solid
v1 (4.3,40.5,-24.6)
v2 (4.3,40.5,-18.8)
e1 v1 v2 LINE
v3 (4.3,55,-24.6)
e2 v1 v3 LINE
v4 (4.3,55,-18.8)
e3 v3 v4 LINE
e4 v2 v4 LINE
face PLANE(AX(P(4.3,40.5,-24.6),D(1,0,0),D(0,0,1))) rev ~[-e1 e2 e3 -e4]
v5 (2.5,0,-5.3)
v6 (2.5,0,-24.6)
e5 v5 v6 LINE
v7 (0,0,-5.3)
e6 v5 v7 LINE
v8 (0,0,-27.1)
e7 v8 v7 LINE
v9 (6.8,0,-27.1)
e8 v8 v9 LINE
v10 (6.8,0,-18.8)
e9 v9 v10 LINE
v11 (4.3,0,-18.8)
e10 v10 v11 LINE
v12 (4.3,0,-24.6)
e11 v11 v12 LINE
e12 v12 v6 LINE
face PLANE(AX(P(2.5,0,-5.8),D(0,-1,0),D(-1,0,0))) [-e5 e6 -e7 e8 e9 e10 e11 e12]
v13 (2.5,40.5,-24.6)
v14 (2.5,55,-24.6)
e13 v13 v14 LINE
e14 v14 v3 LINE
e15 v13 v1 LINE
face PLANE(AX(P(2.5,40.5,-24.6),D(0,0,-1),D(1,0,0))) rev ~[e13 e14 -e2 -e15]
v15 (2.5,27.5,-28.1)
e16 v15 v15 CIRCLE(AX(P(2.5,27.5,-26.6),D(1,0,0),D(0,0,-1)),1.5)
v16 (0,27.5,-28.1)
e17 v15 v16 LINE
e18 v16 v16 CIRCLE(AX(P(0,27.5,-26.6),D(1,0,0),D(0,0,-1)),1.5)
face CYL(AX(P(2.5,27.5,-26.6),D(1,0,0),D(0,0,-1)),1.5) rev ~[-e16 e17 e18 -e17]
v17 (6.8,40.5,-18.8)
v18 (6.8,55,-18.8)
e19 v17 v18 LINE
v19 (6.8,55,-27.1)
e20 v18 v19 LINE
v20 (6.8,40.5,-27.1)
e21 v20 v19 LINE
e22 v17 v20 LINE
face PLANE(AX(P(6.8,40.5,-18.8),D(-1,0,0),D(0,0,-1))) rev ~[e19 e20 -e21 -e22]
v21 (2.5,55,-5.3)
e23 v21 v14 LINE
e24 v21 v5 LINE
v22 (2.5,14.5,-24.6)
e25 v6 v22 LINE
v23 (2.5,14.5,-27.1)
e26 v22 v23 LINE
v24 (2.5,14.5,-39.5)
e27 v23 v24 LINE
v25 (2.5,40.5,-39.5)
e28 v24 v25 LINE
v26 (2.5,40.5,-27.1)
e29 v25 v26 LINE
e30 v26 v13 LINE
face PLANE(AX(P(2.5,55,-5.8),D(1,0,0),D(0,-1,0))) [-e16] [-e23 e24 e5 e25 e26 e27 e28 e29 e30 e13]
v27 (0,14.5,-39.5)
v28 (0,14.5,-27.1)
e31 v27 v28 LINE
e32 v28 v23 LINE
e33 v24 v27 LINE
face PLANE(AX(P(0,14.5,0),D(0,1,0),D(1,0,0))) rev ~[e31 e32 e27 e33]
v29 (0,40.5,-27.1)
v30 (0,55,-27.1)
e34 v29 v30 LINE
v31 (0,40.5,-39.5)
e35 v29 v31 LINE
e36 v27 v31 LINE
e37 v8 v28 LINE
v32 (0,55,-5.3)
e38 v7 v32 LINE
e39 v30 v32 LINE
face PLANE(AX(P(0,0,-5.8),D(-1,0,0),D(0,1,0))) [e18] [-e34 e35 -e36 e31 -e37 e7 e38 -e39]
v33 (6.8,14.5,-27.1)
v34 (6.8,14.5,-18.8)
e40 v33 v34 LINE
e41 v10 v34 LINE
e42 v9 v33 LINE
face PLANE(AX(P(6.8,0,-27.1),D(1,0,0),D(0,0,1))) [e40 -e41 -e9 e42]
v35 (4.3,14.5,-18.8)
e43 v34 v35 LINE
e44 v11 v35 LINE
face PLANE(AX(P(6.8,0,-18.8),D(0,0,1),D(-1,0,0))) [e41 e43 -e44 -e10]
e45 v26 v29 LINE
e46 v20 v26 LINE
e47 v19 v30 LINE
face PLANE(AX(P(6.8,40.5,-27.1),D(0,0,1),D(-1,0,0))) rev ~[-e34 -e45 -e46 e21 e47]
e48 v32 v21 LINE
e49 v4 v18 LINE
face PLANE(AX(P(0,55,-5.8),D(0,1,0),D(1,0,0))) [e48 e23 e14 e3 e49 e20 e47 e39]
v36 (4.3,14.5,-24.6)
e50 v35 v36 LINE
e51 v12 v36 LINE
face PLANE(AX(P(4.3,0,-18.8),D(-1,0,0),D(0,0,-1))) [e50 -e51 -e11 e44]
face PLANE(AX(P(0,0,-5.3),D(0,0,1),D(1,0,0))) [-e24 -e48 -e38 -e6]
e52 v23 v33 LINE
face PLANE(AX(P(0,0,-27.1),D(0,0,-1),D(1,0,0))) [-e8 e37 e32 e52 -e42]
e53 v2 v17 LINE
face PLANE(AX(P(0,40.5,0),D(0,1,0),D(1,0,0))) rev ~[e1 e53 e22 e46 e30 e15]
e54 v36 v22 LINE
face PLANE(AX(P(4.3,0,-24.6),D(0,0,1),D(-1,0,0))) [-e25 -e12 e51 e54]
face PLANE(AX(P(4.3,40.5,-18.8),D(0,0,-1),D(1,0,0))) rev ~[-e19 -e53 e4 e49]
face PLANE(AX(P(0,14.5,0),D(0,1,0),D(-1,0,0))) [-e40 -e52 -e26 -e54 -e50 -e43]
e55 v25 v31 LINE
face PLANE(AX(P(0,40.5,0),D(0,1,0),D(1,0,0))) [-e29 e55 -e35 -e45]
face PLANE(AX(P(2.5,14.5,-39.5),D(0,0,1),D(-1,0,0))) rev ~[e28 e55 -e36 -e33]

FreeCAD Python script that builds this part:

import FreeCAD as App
import Part
import Sketcher
Q = App.Units.Quantity


def add_polygon(sketch, points):
    """Adds a closed chain of lines whose ends are joined by coincident constraints."""
    first, n = sketch.GeometryCount, len(points)
    for a, b in zip(points, points[1:] + points[:1]):
        sketch.addGeometry(Part.LineSegment(App.Vector(*a, 0), App.Vector(*b, 0)), False)
    for i in range(n):
        sketch.addConstraint(Sketcher.Constraint("Coincident", first + i, 2, first + (i + 1) % n, 1))

doc = App.newDocument("Part")
body = doc.addObject("PartDesign::Body", "Body")
body.AllowCompound = True

sketch1 = body.newObject("Sketcher::SketchObject", "Sketch")
sketch1.AttachmentSupport = (doc.getObject("XZ_Plane"), [""])
sketch1.MapMode = "FlatFace"
add_polygon(sketch1, [(0, -27.1), (0, 27.1), (6.8, 27.1), (6.8, 18.8), (4.3, 18.8), (4.3, 24.6), (2.5, 24.6), (2.5, -24.6), (4.3, -24.6), (4.3, -18.8), (6.8, -18.8), (6.8, -27.1)])
sketch1.addConstraint(Sketcher.Constraint("Vertical", 0))
sketch1.addConstraint(Sketcher.Constraint("Horizontal", 1))
sketch1.addConstraint(Sketcher.Constraint("Vertical", 2))
sketch1.addConstraint(Sketcher.Constraint("Horizontal", 3))
sketch1.addConstraint(Sketcher.Constraint("Vertical", 4))
sketch1.addConstraint(Sketcher.Constraint("Horizontal", 5))
sketch1.addConstraint(Sketcher.Constraint("Vertical", 6))
sketch1.addConstraint(Sketcher.Constraint("Horizontal", 7))
sketch1.addConstraint(Sketcher.Constraint("Vertical", 8))
sketch1.addConstraint(Sketcher.Constraint("Horizontal", 9))
sketch1.addConstraint(Sketcher.Constraint("Vertical", 10))
sketch1.addConstraint(Sketcher.Constraint("Horizontal", 11))
sketch1.addConstraint(Sketcher.Constraint("Symmetric", 0, 2, 11, 2, -1, 1))
sketch1.addConstraint(Sketcher.Constraint("Symmetric", 4, 2, 7, 2, -1))
sketch1.addConstraint(Sketcher.Constraint("Symmetric", 2, 2, 9, 2, -1))
sketch1.addConstraint(Sketcher.Constraint("DistanceX", 1, 1, 1, 2, Q("6.8 mm")))
sketch1.addConstraint(Sketcher.Constraint("DistanceX", 3, 2, 3, 1, Q("2.5 mm")))
sketch1.addConstraint(Sketcher.Constraint("DistanceX", 5, 2, 5, 1, Q("1.8 mm")))
sketch1.addConstraint(Sketcher.Constraint("DistanceY", 0, 1, 0, 2, Q("54.2 mm")))
sketch1.addConstraint(Sketcher.Constraint("DistanceY", 2, 2, 2, 1, Q("8.3 mm")))
sketch1.addConstraint(Sketcher.Constraint("DistanceY", 4, 1, 4, 2, Q("5.8 mm")))
pad1 = body.newObject("PartDesign::Pad", "Pad")
pad1.Profile = sketch1
pad1.Length = 14.5
pad1.Reversed = True

sketch2 = body.newObject("Sketcher::SketchObject", "Sketch001")
sketch2.AttachmentSupport = (doc.getObject("XZ_Plane"), [""])
sketch2.MapMode = "FlatFace"
sketch2.AttachmentOffset = App.Placement(App.Vector(0, 0, -14.5), App.Rotation())
add_polygon(sketch2, [(2.5, 39.5), (2.5, -39.5), (0, -39.5), (0, 39.5)])
sketch2.addConstraint(Sketcher.Constraint("Vertical", 0))
sketch2.addConstraint(Sketcher.Constraint("Horizontal", 1))
sketch2.addConstraint(Sketcher.Constraint("Vertical", 2))
sketch2.addConstraint(Sketcher.Constraint("Horizontal", 3))
sketch2.addConstraint(Sketcher.Constraint("Symmetric", 1, 2, 2, 2, -1, 1))
sketch2.addConstraint(Sketcher.Constraint("DistanceY", 0, 2, -1, 1, Q("39.5 mm")))
sketch2.addConstraint(Sketcher.Constraint("DistanceX", 1, 2, 1, 1, Q("2.5 mm")))
pad2 = body.newObject("PartDesign::Pad", "Pad001")
pad2.Profile = sketch2
pad2.Length = 26
pad2.Reversed = True

sketch3 = body.newObject("Sketcher::SketchObject", "Sketch002")
sketch3.AttachmentSupport = (doc.getObject("XZ_Plane"), [""])
sketch3.MapMode = "FlatFace"
sketch3.AttachmentOffset = App.Placement(App.Vector(0, 0, -40.5), App.Rotation())
add_polygon(sketch3, [(4.3, 24.6), (2.5, 24.6), (2.5, -24.6), (4.3, -24.6), (4.3, -18.8), (6.8, -18.8), (6.8, -27.1), (0, -27.1), (0, 27.1), (6.8, 27.1), (6.8, 18.8), (4.3, 18.8)])
sketch3.addConstraint(Sketcher.Constraint("Horizontal", 0))
sketch3.addConstraint(Sketcher.Constraint("Vertical", 1))
sketch3.addConstraint(Sketcher.Constraint("Horizontal", 2))
sketch3.addConstraint(Sketcher.Constraint("Vertical", 3))
sketch3.addConstraint(Sketcher.Constraint("Horizontal", 4))
sketch3.addConstraint(Sketcher.Constraint("Vertical", 5))
sketch3.addConstraint(Sketcher.Constraint("Horizontal", 6))
sketch3.addConstraint(Sketcher.Constraint("Vertical", 7))
sketch3.addConstraint(Sketcher.Constraint("Horizontal", 8))
sketch3.addConstraint(Sketcher.Constraint("Vertical", 9))
sketch3.addConstraint(Sketcher.Constraint("Horizontal", 10))
sketch3.addConstraint(Sketcher.Constraint("Vertical", 11))
sketch3.addConstraint(Sketcher.Constraint("Symmetric", 6, 2, 7, 2, -1, 1))
sketch3.addConstraint(Sketcher.Constraint("Symmetric", 4, 2, 9, 2, -1))
sketch3.addConstraint(Sketcher.Constraint("Symmetric", 2, 2, 11, 2, -1))
sketch3.addConstraint(Sketcher.Constraint("DistanceX", 0, 2, 0, 1, Q("1.8 mm")))
sketch3.addConstraint(Sketcher.Constraint("DistanceX", 4, 1, 4, 2, Q("2.5 mm")))
sketch3.addConstraint(Sketcher.Constraint("DistanceX", 6, 2, 6, 1, Q("6.8 mm")))
sketch3.addConstraint(Sketcher.Constraint("DistanceY", 1, 2, 1, 1, Q("49.2 mm")))
sketch3.addConstraint(Sketcher.Constraint("DistanceY", 3, 1, 3, 2, Q("5.8 mm")))
sketch3.addConstraint(Sketcher.Constraint("DistanceY", 5, 2, 5, 1, Q("8.3 mm")))
pad3 = body.newObject("PartDesign::Pad", "Pad002")
pad3.Profile = sketch3
pad3.Length = 14.5
pad3.Reversed = True

sketch4 = body.newObject("Sketcher::SketchObject", "Sketch003")
sketch4.AttachmentSupport = (doc.getObject("YZ_Plane"), [""])
sketch4.MapMode = "FlatFace"
sketch4.AttachmentOffset = App.Placement(App.Vector(0, 0, 2.5), App.Rotation())
sketch4.addGeometry(Part.Circle(App.Vector(27.5, 26.1, 0), App.Vector(0, 0, 1), 1.5), False)
sketch4.addGeometry(Part.Circle(App.Vector(27.5, -26.6, 0), App.Vector(0, 0, 1), 1.5), False)
sketch4.addConstraint(Sketcher.Constraint("Equal", 0, 1))
sketch4.addConstraint(Sketcher.Constraint("Vertical", 0, 3, 1, 3))
sketch4.addConstraint(Sketcher.Constraint("Diameter", 0, Q("3 mm")))
sketch4.addConstraint(Sketcher.Constraint("DistanceX", -1, 1, 0, 3, Q("27.5 mm")))
sketch4.addConstraint(Sketcher.Constraint("DistanceY", -1, 1, 0, 3, Q("26.1 mm")))
sketch4.addConstraint(Sketcher.Constraint("DistanceY", 1, 3, -1, 1, Q("26.6 mm")))
pocket1 = body.newObject("PartDesign::Pocket", "Pocket")
pocket1.Profile = sketch4
pocket1.Length = 4.5

sketch5 = body.newObject("Sketcher::SketchObject", "Sketch004")
sketch5.AttachmentSupport = (doc.getObject("YZ_Plane"), [""])
sketch5.MapMode = "FlatFace"
add_polygon(sketch5, [(0, -6), (0, 6), (55, 6), (55, -6)])
sketch5.addConstraint(Sketcher.Constraint("Vertical", 0))
sketch5.addConstraint(Sketcher.Constraint("Horizontal", 1))
sketch5.addConstraint(Sketcher.Constraint("Vertical", 2))
sketch5.addConstraint(Sketcher.Constraint("Horizontal", 3))
sketch5.addConstraint(Sketcher.Constraint("Symmetric", 0, 2, 3, 2, -1, 1))
sketch5.addConstraint(Sketcher.Constraint("DistanceY", -1, 1, 0, 2, Q("5.8 mm")))
sketch5.addConstraint(Sketcher.Constraint("DistanceX", 1, 1, 1, 2, Q("55 mm")))
pocket2 = body.newObject("PartDesign::Pocket", "Pocket001")
pocket2.Profile = sketch5
pocket2.Length = 62.3875
pocket2.Reversed = True

sketch6 = body.newObject("Sketcher::SketchObject", "Sketch005")
sketch6.AttachmentSupport = (doc.getObject("YZ_Plane"), [""])
sketch6.MapMode = "FlatFace"
add_polygon(sketch6, [(64, 6), (0, 6), (0, 46), (64, 46)])
sketch6.addConstraint(Sketcher.Constraint("Horizontal", 0))
sketch6.addConstraint(Sketcher.Constraint("Vertical", 1))
sketch6.addConstraint(Sketcher.Constraint("Horizontal", 2))
sketch6.addConstraint(Sketcher.Constraint("Vertical", 3))
sketch6.addConstraint(Sketcher.Constraint("PointOnObject", 0, 2, -2))
sketch6.addConstraint(Sketcher.Constraint("DistanceY", -1, 1, 0, 2, Q("5.8 mm")))
sketch6.addConstraint(Sketcher.Constraint("DistanceX", 0, 2, 0, 1, Q("64.4868 mm")))
sketch6.addConstraint(Sketcher.Constraint("DistanceY", 1, 1, 1, 2, Q("39.8957 mm")))
pocket3 = body.newObject("PartDesign::Pocket", "Pocket002")
pocket3.Profile = sketch6
pocket3.Length = 62.3875
pocket3.Reversed = True

sketch7 = body.newObject("Sketcher::SketchObject", "Sketch006")
sketch7.AttachmentSupport = (doc.getObject("XY_Plane"), [""])
sketch7.MapMode = "FlatFace"
sketch7.AttachmentOffset = App.Placement(App.Vector(0, 0, -5.8), App.Rotation())
add_polygon(sketch7, [(2.5, 55), (0, 55), (0, 0), (2.5, 0)])
sketch7.addConstraint(Sketcher.Constraint("Horizontal", 0))
sketch7.addConstraint(Sketcher.Constraint("Vertical", 1))
sketch7.addConstraint(Sketcher.Constraint("Horizontal", 2))
sketch7.addConstraint(Sketcher.Constraint("Vertical", 3))
sketch7.addConstraint(Sketcher.Constraint("Coincident", 1, 2, -1, 1))
sketch7.addConstraint(Sketcher.Constraint("DistanceY", 1, 2, 1, 1, Q("55 mm")))
sketch7.addConstraint(Sketcher.Constraint("DistanceX", 0, 2, 0, 1, Q("2.5 mm")))
pad4 = body.newObject("PartDesign::Pad", "Pad003")
pad4.Profile = sketch7
pad4.Length = 0.5

doc.recompute()
